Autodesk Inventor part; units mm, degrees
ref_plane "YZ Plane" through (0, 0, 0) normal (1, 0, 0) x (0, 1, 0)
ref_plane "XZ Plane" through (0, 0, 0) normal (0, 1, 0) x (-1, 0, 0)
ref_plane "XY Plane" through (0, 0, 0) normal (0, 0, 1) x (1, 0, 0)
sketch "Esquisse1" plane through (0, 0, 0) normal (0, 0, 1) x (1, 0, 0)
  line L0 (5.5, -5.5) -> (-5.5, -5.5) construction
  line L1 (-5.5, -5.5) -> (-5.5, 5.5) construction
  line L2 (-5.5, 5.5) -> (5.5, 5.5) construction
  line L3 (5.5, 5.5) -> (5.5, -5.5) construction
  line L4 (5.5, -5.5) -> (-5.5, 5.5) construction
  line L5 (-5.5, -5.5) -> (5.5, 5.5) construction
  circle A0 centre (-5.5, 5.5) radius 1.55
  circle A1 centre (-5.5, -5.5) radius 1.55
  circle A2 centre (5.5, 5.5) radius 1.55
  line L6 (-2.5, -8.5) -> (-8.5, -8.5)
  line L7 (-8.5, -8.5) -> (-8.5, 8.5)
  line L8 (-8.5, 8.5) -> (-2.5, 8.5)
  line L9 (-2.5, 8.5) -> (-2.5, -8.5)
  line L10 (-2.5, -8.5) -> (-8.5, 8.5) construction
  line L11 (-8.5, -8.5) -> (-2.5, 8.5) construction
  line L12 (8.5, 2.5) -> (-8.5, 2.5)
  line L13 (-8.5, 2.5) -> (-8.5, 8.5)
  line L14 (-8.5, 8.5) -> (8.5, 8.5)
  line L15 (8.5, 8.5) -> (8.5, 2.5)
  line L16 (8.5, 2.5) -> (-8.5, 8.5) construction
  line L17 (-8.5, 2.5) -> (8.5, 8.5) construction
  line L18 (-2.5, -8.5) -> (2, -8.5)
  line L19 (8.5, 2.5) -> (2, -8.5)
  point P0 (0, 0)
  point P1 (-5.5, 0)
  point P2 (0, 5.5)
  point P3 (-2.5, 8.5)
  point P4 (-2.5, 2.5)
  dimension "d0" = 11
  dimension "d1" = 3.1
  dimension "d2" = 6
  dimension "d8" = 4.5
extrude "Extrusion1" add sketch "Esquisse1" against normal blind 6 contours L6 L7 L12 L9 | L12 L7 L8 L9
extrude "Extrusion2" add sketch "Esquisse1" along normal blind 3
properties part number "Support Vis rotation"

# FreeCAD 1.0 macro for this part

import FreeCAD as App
import Part
import Sketcher
Q = App.Units.Quantity


def add_polygon(sketch, points):
    """Adds a closed chain of lines whose ends are joined by coincident constraints."""
    first, n = sketch.GeometryCount, len(points)
    for a, b in zip(points, points[1:] + points[:1]):
        sketch.addGeometry(Part.LineSegment(App.Vector(*a, 0), App.Vector(*b, 0)), False)
    for i in range(n):
        sketch.addConstraint(Sketcher.Constraint("Coincident", first + i, 2, first + (i + 1) % n, 1))

doc = App.newDocument("Part")
body = doc.addObject("PartDesign::Body", "Body")

# Sketch on XY plane
sketch1 = body.newObject("Sketcher::SketchObject", "Sketch")
sketch1.AttachmentSupport = (doc.getObject("XY_Plane"), [""])
sketch1.MapMode = "FlatFace"
add_polygon(sketch1, [(-8.5, -8.5), (-2.5, -8.5), (-2.5, 8.5), (-8.5, 8.5)])  # lines 0-3
sketch1.addGeometry(Part.Circle(App.Vector(-5.5, -5.5, 0), App.Vector(0, 0, 1), 1.6), False)  # 4
sketch1.addGeometry(Part.Circle(App.Vector(-5.5, 5.5, 0), App.Vector(0, 0, 1), 1.6), False)  # 5
sketch1.addConstraint([
    Sketcher.Constraint("Horizontal", 0),
    Sketcher.Constraint("Vertical", 1),
    Sketcher.Constraint("Horizontal", 2),
    Sketcher.Constraint("Vertical", 3),
    Sketcher.Constraint("Equal", 4, 5),
    Sketcher.Constraint("Symmetric", 4, 3, 5, 3, -1),
    Sketcher.Constraint("Diameter", 4, Q("3.1 mm")),
    Sketcher.Constraint("DistanceX", 0, 1, 0, 2, Q("6 mm")),
    Sketcher.Constraint("DistanceY", 4, 3, 5, 3, Q("11 mm")),
    Sketcher.Constraint("DistanceY", 1, 1, 1, 2, Q("17 mm")),
    Sketcher.Constraint("DistanceX", 4, 3, 0, 2, Q("3 mm")),
    Sketcher.Constraint("DistanceY", 0, 2, 4, 3, Q("3 mm")),
    Sketcher.Constraint("DistanceX", 4, 3, -1, 1, Q("5.5 mm")),
])
pad1 = body.newObject("PartDesign::Pad", "Pad")
pad1.Profile = sketch1
pad1.Length = 6
pad1.Reversed = True

# Sketch on XY plane
sketch2 = body.newObject("Sketcher::SketchObject", "Sketch001")
sketch2.AttachmentSupport = (doc.getObject("XY_Plane"), [""])
sketch2.MapMode = "FlatFace"
add_polygon(sketch2, [(-8.5, -8.5), (2, -8.5), (8.5, 2.5), (8.5, 8.5), (-8.5, 8.5)])  # lines 0-4
sketch2.addGeometry(Part.Circle(App.Vector(-5.5, -5.5, 0), App.Vector(0, 0, 1), 1.6), False)  # 5
sketch2.addGeometry(Part.Circle(App.Vector(-5.5, 5.5, 0), App.Vector(0, 0, 1), 1.6), False)  # 6
sketch2.addGeometry(Part.Circle(App.Vector(5.5, 5.5, 0), App.Vector(0, 0, 1), 1.6), False)  # 7
sketch2.addConstraint([
    Sketcher.Constraint("Horizontal", 0),
    Sketcher.Constraint("Vertical", 2),
    Sketcher.Constraint("Horizontal", 3),
    Sketcher.Constraint("Vertical", 4),
    Sketcher.Constraint("Equal", 5, 6),
    Sketcher.Constraint("Equal", 6, 7),
    Sketcher.Constraint("Symmetric", 5, 3, 7, 3, -1, 1),
    Sketcher.Constraint("Symmetric", 2, 2, 4, 2, -1, 1),
    Sketcher.Constraint("Symmetric", 6, 3, 7, 3, -2),
    Sketcher.Constraint("Equal", 3, 4),
    Sketcher.Constraint("Diameter", 5, Q("3.1 mm")),
    Sketcher.Constraint("DistanceY", 2, 1, 2, 2, Q("6 mm")),
    Sketcher.Constraint("DistanceY", 5, 3, 6, 3, Q("11 mm")),
    Sketcher.Constraint("DistanceX", 6, 3, 7, 3, Q("11 mm")),
    Sketcher.Constraint("DistanceY", 0, 2, 1, 2, Q("11 mm")),
    Sketcher.Constraint("DistanceX", 0, 1, 0, 2, Q("10.5 mm")),
])
pad2 = body.newObject("PartDesign::Pad", "Pad001")
pad2.Profile = sketch2
pad2.Length = 3

doc.recompute()
